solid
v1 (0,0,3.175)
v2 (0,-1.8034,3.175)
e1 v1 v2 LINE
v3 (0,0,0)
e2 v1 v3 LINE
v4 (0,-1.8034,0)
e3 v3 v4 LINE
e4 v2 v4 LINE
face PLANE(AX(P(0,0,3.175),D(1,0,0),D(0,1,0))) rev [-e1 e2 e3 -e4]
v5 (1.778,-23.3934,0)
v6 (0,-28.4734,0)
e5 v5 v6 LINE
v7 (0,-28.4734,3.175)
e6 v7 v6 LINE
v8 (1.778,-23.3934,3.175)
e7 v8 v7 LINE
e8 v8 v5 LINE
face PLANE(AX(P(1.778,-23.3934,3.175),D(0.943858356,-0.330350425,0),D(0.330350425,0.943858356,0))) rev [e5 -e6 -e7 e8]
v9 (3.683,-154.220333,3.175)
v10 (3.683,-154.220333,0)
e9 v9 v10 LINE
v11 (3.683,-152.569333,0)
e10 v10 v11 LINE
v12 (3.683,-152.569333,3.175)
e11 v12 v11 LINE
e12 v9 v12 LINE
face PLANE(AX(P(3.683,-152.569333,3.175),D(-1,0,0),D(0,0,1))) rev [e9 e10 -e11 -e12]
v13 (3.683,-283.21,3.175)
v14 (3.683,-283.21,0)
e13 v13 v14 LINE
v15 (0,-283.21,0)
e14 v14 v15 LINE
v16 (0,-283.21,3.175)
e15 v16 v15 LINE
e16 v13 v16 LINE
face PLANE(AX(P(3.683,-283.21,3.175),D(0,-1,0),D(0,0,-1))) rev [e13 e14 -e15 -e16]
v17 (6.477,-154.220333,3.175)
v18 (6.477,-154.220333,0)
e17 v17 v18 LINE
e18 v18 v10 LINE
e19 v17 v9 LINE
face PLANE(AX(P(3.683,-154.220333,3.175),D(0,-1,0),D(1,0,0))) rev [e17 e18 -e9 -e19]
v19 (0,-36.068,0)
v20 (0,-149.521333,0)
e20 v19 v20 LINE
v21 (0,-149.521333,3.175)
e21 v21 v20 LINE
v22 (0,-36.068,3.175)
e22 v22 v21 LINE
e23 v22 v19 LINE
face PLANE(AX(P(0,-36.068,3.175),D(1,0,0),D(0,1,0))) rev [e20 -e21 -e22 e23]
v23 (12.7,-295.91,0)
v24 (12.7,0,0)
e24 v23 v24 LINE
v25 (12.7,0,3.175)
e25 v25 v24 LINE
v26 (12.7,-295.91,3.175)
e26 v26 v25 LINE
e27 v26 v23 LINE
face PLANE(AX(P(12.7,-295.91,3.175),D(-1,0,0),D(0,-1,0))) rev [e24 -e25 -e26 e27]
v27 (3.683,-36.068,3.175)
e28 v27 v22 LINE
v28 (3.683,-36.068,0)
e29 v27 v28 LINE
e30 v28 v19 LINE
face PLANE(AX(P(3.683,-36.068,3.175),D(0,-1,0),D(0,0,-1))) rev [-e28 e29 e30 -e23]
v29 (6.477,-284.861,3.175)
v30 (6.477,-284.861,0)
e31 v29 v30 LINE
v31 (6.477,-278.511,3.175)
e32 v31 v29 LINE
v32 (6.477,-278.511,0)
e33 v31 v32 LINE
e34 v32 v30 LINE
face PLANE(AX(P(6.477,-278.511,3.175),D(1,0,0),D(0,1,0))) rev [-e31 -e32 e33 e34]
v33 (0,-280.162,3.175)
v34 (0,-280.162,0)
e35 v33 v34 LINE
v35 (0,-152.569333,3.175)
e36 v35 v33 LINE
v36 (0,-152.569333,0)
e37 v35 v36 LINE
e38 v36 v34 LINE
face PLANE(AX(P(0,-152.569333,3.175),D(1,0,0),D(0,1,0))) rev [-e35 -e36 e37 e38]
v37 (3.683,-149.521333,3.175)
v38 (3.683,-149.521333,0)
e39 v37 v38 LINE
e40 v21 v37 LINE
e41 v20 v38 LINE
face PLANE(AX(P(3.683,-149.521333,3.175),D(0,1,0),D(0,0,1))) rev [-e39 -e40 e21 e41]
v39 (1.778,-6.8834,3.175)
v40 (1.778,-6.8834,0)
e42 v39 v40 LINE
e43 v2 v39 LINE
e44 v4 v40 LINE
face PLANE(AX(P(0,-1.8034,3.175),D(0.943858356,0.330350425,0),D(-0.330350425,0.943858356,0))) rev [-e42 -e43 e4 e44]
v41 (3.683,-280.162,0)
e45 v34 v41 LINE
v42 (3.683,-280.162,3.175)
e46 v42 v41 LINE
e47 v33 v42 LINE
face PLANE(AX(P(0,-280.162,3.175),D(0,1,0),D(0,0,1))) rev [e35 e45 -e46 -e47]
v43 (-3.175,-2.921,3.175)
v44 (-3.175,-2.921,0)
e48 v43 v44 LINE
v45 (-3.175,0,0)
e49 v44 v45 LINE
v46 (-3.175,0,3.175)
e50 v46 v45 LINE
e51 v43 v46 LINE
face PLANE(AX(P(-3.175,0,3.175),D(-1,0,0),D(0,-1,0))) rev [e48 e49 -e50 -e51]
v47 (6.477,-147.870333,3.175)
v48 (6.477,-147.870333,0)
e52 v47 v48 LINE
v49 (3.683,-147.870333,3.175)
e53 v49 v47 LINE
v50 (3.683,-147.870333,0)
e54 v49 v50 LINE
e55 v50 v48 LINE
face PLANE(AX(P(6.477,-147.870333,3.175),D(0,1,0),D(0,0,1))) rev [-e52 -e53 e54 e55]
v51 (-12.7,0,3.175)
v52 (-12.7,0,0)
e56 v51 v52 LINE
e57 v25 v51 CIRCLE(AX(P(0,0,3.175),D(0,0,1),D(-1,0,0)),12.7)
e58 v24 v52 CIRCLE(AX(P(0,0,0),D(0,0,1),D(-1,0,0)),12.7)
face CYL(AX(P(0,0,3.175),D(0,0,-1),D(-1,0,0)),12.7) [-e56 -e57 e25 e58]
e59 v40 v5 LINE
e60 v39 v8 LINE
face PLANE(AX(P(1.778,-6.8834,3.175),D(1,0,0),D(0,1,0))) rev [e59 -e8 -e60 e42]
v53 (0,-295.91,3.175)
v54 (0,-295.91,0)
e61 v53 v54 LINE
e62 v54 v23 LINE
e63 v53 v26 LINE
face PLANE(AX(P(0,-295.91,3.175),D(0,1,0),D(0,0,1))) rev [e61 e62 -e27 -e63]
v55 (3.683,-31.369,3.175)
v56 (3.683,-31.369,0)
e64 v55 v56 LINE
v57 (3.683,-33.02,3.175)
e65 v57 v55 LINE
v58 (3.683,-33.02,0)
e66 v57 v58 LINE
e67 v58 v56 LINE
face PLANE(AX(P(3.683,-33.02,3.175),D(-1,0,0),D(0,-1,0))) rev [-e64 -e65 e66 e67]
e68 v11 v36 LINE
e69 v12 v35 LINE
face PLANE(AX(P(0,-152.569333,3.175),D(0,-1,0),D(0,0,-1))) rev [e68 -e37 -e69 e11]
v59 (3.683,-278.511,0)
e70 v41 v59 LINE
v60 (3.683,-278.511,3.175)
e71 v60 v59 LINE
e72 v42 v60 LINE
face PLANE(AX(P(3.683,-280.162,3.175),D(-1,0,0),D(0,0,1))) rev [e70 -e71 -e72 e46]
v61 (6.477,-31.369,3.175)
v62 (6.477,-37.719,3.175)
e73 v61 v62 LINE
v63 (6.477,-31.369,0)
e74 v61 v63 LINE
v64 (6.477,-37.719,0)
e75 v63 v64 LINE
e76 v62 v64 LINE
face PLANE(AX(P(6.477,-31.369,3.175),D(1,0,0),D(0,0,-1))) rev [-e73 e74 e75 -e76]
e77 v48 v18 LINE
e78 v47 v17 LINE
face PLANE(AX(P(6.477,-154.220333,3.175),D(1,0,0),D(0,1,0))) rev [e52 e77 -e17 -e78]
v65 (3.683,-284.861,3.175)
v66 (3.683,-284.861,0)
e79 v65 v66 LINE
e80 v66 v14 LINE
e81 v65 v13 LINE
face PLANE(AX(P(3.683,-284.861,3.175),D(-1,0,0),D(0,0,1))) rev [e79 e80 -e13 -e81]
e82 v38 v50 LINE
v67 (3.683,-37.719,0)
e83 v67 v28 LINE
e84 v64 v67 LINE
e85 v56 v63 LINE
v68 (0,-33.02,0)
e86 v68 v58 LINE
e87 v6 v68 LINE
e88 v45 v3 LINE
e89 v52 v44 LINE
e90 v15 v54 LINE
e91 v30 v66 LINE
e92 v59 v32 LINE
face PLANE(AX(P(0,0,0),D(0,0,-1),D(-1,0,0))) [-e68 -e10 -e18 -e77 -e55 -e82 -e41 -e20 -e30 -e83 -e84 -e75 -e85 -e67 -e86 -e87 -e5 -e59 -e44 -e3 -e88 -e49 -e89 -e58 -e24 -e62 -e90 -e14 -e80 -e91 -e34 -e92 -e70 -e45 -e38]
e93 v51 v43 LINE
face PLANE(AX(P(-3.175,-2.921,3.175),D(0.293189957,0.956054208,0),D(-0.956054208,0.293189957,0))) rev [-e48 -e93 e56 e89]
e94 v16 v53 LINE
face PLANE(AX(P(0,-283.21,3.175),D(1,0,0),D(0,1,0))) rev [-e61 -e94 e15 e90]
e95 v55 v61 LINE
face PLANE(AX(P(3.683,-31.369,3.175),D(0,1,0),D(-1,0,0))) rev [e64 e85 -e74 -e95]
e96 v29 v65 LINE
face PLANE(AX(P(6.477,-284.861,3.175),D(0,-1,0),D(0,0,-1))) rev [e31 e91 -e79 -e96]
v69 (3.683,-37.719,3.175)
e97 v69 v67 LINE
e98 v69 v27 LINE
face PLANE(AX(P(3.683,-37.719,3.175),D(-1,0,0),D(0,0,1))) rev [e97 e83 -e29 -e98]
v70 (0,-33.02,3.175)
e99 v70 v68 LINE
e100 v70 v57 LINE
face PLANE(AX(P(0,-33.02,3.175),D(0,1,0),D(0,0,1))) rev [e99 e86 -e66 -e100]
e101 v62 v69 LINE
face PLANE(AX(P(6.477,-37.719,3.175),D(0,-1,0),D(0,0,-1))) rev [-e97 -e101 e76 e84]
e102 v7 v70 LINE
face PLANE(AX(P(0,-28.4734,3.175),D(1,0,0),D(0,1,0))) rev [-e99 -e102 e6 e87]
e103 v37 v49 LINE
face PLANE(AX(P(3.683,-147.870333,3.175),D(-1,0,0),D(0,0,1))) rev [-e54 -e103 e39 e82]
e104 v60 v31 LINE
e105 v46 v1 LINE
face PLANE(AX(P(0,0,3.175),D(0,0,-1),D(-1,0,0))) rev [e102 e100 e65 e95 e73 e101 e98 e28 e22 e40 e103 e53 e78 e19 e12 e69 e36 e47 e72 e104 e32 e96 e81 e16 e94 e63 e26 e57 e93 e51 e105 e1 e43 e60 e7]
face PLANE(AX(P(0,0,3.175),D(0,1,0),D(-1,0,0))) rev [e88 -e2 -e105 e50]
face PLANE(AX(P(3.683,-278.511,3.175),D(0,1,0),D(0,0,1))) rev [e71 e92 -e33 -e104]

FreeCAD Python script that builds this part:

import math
import FreeCAD as App
import Part
import Sketcher
Q = App.Units.Quantity

doc = App.newDocument("Part")
body = doc.addObject("PartDesign::Body", "Body")

# Sketch on XY plane
sketch1 = body.newObject("Sketcher::SketchObject", "Sketch")
sketch1.AttachmentSupport = (doc.getObject("XY_Plane"), [""])
sketch1.MapMode = "FlatFace"
sketch1.addGeometry([
    Part.LineSegment(App.Vector(0, 0, 0), App.Vector(0, -1.8, 0)),  # 0
    Part.LineSegment(App.Vector(0, -1.8, 0), App.Vector(1.8, -6.9, 0)),  # 1
    Part.LineSegment(App.Vector(1.8, -6.9, 0), App.Vector(1.8, -23.4, 0)),  # 2
    Part.LineSegment(App.Vector(1.8, -23.4, 0), App.Vector(0, -28.5, 0)),  # 3
    Part.LineSegment(App.Vector(0, -28.5, 0), App.Vector(0, -33, 0)),  # 4
    Part.LineSegment(App.Vector(0, -33, 0), App.Vector(3.7, -33, 0)),  # 5
    Part.LineSegment(App.Vector(3.7, -33, 0), App.Vector(3.7, -31.4, 0)),  # 6
    Part.LineSegment(App.Vector(3.7, -31.4, 0), App.Vector(6.5, -31.4, 0)),  # 7
    Part.LineSegment(App.Vector(6.5, -31.4, 0), App.Vector(6.5, -37.7, 0)),  # 8
    Part.LineSegment(App.Vector(6.5, -37.7, 0), App.Vector(3.7, -37.7, 0)),  # 9
    Part.LineSegment(App.Vector(3.7, -37.7, 0), App.Vector(3.7, -36.1, 0)),  # 10
    Part.LineSegment(App.Vector(3.7, -36.1, 0), App.Vector(0, -36.1, 0)),  # 11
    Part.LineSegment(App.Vector(0, -36.1, 0), App.Vector(0, -149.5, 0)),  # 12
    Part.LineSegment(App.Vector(0, -149.5, 0), App.Vector(3.7, -149.5, 0)),  # 13
    Part.LineSegment(App.Vector(3.7, -149.5, 0), App.Vector(3.7, -147.9, 0)),  # 14
    Part.LineSegment(App.Vector(3.7, -147.9, 0), App.Vector(6.5, -147.9, 0)),  # 15
    Part.LineSegment(App.Vector(6.5, -147.9, 0), App.Vector(6.5, -154.2, 0)),  # 16
    Part.LineSegment(App.Vector(6.5, -154.2, 0), App.Vector(3.7, -154.2, 0)),  # 17
    Part.LineSegment(App.Vector(3.7, -154.2, 0), App.Vector(3.7, -152.6, 0)),  # 18
    Part.LineSegment(App.Vector(3.7, -152.6, 0), App.Vector(0, -152.6, 0)),  # 19
    Part.LineSegment(App.Vector(0, -152.6, 0), App.Vector(0, -280.2, 0)),  # 20
    Part.LineSegment(App.Vector(0, -280.2, 0), App.Vector(3.7, -280.2, 0)),  # 21
    Part.LineSegment(App.Vector(3.7, -280.2, 0), App.Vector(3.7, -278.5, 0)),  # 22
    Part.LineSegment(App.Vector(3.7, -278.5, 0), App.Vector(6.5, -278.5, 0)),  # 23
    Part.LineSegment(App.Vector(6.5, -278.5, 0), App.Vector(6.5, -284.9, 0)),  # 24
    Part.LineSegment(App.Vector(6.5, -284.9, 0), App.Vector(3.7, -284.9, 0)),  # 25
    Part.LineSegment(App.Vector(3.7, -284.9, 0), App.Vector(3.7, -283.2, 0)),  # 26
    Part.LineSegment(App.Vector(3.7, -283.2, 0), App.Vector(0, -283.2, 0)),  # 27
    Part.LineSegment(App.Vector(0, -283.2, 0), App.Vector(0, -295.9, 0)),  # 28
    Part.LineSegment(App.Vector(0, -295.9, 0), App.Vector(12.7, -295.9, 0)),  # 29
    Part.LineSegment(App.Vector(12.7, -295.9, 0), App.Vector(12.7, 0, 0)),  # 30
    Part.ArcOfCircle(Part.Circle(App.Vector(0, 0, 0), App.Vector(0, 0, 1), 12.7), math.radians(0), math.radians(180)),  # 31
    Part.LineSegment(App.Vector(-12.7, 0, 0), App.Vector(-3.2, -2.9, 0)),  # 32
    Part.LineSegment(App.Vector(-3.2, -2.9, 0), App.Vector(-3.2, 0, 0)),  # 33
    Part.LineSegment(App.Vector(-3.2, 0, 0), App.Vector(0, 0, 0)),  # 34
], False)
sketch1.addConstraint([
    Sketcher.Constraint("Coincident", 0, 2, 1, 1),
    Sketcher.Constraint("Coincident", 1, 2, 2, 1),
    Sketcher.Constraint("Coincident", 2, 2, 3, 1),
    Sketcher.Constraint("Coincident", 3, 2, 4, 1),
    Sketcher.Constraint("Coincident", 4, 2, 5, 1),
    Sketcher.Constraint("Coincident", 5, 2, 6, 1),
    Sketcher.Constraint("Coincident", 6, 2, 7, 1),
    Sketcher.Constraint("Coincident", 7, 2, 8, 1),
    Sketcher.Constraint("Coincident", 8, 2, 9, 1),
    Sketcher.Constraint("Coincident", 9, 2, 10, 1),
    Sketcher.Constraint("Coincident", 10, 2, 11, 1),
    Sketcher.Constraint("Coincident", 11, 2, 12, 1),
    Sketcher.Constraint("Coincident", 12, 2, 13, 1),
    Sketcher.Constraint("Coincident", 13, 2, 14, 1),
    Sketcher.Constraint("Coincident", 14, 2, 15, 1),
    Sketcher.Constraint("Coincident", 15, 2, 16, 1),
    Sketcher.Constraint("Coincident", 16, 2, 17, 1),
    Sketcher.Constraint("Coincident", 17, 2, 18, 1),
    Sketcher.Constraint("Coincident", 18, 2, 19, 1),
    Sketcher.Constraint("Coincident", 19, 2, 20, 1),
    Sketcher.Constraint("Coincident", 20, 2, 21, 1),
    Sketcher.Constraint("Coincident", 21, 2, 22, 1),
    Sketcher.Constraint("Coincident", 22, 2, 23, 1),
    Sketcher.Constraint("Coincident", 23, 2, 24, 1),
    Sketcher.Constraint("Coincident", 24, 2, 25, 1),
    Sketcher.Constraint("Coincident", 25, 2, 26, 1),
    Sketcher.Constraint("Coincident", 26, 2, 27, 1),
    Sketcher.Constraint("Coincident", 27, 2, 28, 1),
    Sketcher.Constraint("Coincident", 28, 2, 29, 1),
    Sketcher.Constraint("Coincident", 29, 2, 30, 1),
    Sketcher.Constraint("Tangent", 30, 2, 31, 1),
    Sketcher.Constraint("Coincident", 31, 2, 32, 1),
    Sketcher.Constraint("Coincident", 32, 2, 33, 1),
    Sketcher.Constraint("Coincident", 33, 2, 34, 1),
    Sketcher.Constraint("Coincident", 34, 2, 0, 1),
    Sketcher.Constraint("Vertical", 0),
    Sketcher.Constraint("Vertical", 2),
    Sketcher.Constraint("Vertical", 4),
    Sketcher.Constraint("Horizontal", 5),
    Sketcher.Constraint("Vertical", 6),
    Sketcher.Constraint("Horizontal", 7),
    Sketcher.Constraint("Vertical", 8),
    Sketcher.Constraint("Horizontal", 9),
    Sketcher.Constraint("Vertical", 10),
    Sketcher.Constraint("Horizontal", 11),
    Sketcher.Constraint("Vertical", 12),
    Sketcher.Constraint("Horizontal", 13),
    Sketcher.Constraint("Vertical", 14),
    Sketcher.Constraint("Horizontal", 15),
    Sketcher.Constraint("Vertical", 16),
    Sketcher.Constraint("Horizontal", 17),
    Sketcher.Constraint("Vertical", 18),
    Sketcher.Constraint("Horizontal", 19),
    Sketcher.Constraint("Vertical", 20),
    Sketcher.Constraint("Horizontal", 21),
    Sketcher.Constraint("Vertical", 22),
    Sketcher.Constraint("Horizontal", 23),
    Sketcher.Constraint("Vertical", 24),
    Sketcher.Constraint("Horizontal", 25),
    Sketcher.Constraint("Vertical", 26),
    Sketcher.Constraint("Horizontal", 27),
    Sketcher.Constraint("Vertical", 28),
    Sketcher.Constraint("Horizontal", 29),
    Sketcher.Constraint("Vertical", 30),
    Sketcher.Constraint("Vertical", 33),
    Sketcher.Constraint("Horizontal", 34),
    Sketcher.Constraint("Coincident", 31, 3, -1, 1),
    Sketcher.Constraint("Coincident", 34, 2, -1, 1),
    Sketcher.Constraint("PointOnObject", 3, 2, -2),
    Sketcher.Constraint("PointOnObject", 11, 2, -2),
    Sketcher.Constraint("PointOnObject", 19, 2, -2),
    Sketcher.Constraint("PointOnObject", 27, 2, -2),
    Sketcher.Constraint("PointOnObject", 31, 2, -1),
    Sketcher.Constraint("Vertical", 6, 2, 9, 2),
    Sketcher.Constraint("Vertical", 10, 2, 13, 2),
    Sketcher.Constraint("Vertical", 8, 2, 15, 2),
    Sketcher.Constraint("Vertical", 14, 2, 17, 2),
    Sketcher.Constraint("Vertical", 18, 2, 21, 2),
    Sketcher.Constraint("Vertical", 16, 2, 23, 2),
    Sketcher.Constraint("Vertical", 22, 2, 25, 2),
    Sketcher.Constraint("Equal", 6, 10),
    Sketcher.Constraint("Equal", 10, 14),
    Sketcher.Constraint("Equal", 8, 16),
    Sketcher.Constraint("Equal", 14, 18),
    Sketcher.Constraint("Equal", 18, 22),
    Sketcher.Constraint("Equal", 16, 24),
    Sketcher.Constraint("Equal", 22, 26),
    Sketcher.Constraint("Equal", 29, 28),
    Sketcher.Constraint("Equal", 1, 3),
    Sketcher.Constraint("Radius", 31, Q("0.5 in")),
    Sketcher.Constraint("DistanceX", 7, 1, 7, 2, Q("0.11 in")),
    Sketcher.Constraint("DistanceY", 2, 2, 2, 1, Q("0.65 in")),
    Sketcher.Constraint("DistanceY", 8, 2, 8, 1, Q("0.25 in")),
    Sketcher.Constraint("DistanceY", 30, 1, 30, 2, Q("11.65 in")),
    Sketcher.Constraint("DistanceY", 4, 2, -1, 1, Q("1.3 in")),
    Sketcher.Constraint("DistanceY", 1, 2, 0, 2, Q("0.2 in")),
    Sketcher.Constraint("DistanceX", 5, 1, 5, 2, Q("0.145 in")),
    Sketcher.Constraint("DistanceX", 34, 1, 34, 2, Q("0.125 in")),
    Sketcher.Constraint("DistanceY", 0, 2, 0, 1, Q("0.071 in")),
    Sketcher.Constraint("DistanceY", 6, 1, 6, 2, Q("0.065 in")),
    Sketcher.Constraint("DistanceY", 33, 1, 33, 2, Q("0.115 in")),
    Sketcher.Constraint("DistanceX", -1, 1, 1, 2, Q("0.07 in")),
    Sketcher.Constraint("DistanceY", 12, 2, 12, 1, Q("113.453333 mm")),
])
pad1 = body.newObject("PartDesign::Pad", "Pad")
pad1.Profile = sketch1
pad1.Length = Q("0.125 in")

doc.recompute()
